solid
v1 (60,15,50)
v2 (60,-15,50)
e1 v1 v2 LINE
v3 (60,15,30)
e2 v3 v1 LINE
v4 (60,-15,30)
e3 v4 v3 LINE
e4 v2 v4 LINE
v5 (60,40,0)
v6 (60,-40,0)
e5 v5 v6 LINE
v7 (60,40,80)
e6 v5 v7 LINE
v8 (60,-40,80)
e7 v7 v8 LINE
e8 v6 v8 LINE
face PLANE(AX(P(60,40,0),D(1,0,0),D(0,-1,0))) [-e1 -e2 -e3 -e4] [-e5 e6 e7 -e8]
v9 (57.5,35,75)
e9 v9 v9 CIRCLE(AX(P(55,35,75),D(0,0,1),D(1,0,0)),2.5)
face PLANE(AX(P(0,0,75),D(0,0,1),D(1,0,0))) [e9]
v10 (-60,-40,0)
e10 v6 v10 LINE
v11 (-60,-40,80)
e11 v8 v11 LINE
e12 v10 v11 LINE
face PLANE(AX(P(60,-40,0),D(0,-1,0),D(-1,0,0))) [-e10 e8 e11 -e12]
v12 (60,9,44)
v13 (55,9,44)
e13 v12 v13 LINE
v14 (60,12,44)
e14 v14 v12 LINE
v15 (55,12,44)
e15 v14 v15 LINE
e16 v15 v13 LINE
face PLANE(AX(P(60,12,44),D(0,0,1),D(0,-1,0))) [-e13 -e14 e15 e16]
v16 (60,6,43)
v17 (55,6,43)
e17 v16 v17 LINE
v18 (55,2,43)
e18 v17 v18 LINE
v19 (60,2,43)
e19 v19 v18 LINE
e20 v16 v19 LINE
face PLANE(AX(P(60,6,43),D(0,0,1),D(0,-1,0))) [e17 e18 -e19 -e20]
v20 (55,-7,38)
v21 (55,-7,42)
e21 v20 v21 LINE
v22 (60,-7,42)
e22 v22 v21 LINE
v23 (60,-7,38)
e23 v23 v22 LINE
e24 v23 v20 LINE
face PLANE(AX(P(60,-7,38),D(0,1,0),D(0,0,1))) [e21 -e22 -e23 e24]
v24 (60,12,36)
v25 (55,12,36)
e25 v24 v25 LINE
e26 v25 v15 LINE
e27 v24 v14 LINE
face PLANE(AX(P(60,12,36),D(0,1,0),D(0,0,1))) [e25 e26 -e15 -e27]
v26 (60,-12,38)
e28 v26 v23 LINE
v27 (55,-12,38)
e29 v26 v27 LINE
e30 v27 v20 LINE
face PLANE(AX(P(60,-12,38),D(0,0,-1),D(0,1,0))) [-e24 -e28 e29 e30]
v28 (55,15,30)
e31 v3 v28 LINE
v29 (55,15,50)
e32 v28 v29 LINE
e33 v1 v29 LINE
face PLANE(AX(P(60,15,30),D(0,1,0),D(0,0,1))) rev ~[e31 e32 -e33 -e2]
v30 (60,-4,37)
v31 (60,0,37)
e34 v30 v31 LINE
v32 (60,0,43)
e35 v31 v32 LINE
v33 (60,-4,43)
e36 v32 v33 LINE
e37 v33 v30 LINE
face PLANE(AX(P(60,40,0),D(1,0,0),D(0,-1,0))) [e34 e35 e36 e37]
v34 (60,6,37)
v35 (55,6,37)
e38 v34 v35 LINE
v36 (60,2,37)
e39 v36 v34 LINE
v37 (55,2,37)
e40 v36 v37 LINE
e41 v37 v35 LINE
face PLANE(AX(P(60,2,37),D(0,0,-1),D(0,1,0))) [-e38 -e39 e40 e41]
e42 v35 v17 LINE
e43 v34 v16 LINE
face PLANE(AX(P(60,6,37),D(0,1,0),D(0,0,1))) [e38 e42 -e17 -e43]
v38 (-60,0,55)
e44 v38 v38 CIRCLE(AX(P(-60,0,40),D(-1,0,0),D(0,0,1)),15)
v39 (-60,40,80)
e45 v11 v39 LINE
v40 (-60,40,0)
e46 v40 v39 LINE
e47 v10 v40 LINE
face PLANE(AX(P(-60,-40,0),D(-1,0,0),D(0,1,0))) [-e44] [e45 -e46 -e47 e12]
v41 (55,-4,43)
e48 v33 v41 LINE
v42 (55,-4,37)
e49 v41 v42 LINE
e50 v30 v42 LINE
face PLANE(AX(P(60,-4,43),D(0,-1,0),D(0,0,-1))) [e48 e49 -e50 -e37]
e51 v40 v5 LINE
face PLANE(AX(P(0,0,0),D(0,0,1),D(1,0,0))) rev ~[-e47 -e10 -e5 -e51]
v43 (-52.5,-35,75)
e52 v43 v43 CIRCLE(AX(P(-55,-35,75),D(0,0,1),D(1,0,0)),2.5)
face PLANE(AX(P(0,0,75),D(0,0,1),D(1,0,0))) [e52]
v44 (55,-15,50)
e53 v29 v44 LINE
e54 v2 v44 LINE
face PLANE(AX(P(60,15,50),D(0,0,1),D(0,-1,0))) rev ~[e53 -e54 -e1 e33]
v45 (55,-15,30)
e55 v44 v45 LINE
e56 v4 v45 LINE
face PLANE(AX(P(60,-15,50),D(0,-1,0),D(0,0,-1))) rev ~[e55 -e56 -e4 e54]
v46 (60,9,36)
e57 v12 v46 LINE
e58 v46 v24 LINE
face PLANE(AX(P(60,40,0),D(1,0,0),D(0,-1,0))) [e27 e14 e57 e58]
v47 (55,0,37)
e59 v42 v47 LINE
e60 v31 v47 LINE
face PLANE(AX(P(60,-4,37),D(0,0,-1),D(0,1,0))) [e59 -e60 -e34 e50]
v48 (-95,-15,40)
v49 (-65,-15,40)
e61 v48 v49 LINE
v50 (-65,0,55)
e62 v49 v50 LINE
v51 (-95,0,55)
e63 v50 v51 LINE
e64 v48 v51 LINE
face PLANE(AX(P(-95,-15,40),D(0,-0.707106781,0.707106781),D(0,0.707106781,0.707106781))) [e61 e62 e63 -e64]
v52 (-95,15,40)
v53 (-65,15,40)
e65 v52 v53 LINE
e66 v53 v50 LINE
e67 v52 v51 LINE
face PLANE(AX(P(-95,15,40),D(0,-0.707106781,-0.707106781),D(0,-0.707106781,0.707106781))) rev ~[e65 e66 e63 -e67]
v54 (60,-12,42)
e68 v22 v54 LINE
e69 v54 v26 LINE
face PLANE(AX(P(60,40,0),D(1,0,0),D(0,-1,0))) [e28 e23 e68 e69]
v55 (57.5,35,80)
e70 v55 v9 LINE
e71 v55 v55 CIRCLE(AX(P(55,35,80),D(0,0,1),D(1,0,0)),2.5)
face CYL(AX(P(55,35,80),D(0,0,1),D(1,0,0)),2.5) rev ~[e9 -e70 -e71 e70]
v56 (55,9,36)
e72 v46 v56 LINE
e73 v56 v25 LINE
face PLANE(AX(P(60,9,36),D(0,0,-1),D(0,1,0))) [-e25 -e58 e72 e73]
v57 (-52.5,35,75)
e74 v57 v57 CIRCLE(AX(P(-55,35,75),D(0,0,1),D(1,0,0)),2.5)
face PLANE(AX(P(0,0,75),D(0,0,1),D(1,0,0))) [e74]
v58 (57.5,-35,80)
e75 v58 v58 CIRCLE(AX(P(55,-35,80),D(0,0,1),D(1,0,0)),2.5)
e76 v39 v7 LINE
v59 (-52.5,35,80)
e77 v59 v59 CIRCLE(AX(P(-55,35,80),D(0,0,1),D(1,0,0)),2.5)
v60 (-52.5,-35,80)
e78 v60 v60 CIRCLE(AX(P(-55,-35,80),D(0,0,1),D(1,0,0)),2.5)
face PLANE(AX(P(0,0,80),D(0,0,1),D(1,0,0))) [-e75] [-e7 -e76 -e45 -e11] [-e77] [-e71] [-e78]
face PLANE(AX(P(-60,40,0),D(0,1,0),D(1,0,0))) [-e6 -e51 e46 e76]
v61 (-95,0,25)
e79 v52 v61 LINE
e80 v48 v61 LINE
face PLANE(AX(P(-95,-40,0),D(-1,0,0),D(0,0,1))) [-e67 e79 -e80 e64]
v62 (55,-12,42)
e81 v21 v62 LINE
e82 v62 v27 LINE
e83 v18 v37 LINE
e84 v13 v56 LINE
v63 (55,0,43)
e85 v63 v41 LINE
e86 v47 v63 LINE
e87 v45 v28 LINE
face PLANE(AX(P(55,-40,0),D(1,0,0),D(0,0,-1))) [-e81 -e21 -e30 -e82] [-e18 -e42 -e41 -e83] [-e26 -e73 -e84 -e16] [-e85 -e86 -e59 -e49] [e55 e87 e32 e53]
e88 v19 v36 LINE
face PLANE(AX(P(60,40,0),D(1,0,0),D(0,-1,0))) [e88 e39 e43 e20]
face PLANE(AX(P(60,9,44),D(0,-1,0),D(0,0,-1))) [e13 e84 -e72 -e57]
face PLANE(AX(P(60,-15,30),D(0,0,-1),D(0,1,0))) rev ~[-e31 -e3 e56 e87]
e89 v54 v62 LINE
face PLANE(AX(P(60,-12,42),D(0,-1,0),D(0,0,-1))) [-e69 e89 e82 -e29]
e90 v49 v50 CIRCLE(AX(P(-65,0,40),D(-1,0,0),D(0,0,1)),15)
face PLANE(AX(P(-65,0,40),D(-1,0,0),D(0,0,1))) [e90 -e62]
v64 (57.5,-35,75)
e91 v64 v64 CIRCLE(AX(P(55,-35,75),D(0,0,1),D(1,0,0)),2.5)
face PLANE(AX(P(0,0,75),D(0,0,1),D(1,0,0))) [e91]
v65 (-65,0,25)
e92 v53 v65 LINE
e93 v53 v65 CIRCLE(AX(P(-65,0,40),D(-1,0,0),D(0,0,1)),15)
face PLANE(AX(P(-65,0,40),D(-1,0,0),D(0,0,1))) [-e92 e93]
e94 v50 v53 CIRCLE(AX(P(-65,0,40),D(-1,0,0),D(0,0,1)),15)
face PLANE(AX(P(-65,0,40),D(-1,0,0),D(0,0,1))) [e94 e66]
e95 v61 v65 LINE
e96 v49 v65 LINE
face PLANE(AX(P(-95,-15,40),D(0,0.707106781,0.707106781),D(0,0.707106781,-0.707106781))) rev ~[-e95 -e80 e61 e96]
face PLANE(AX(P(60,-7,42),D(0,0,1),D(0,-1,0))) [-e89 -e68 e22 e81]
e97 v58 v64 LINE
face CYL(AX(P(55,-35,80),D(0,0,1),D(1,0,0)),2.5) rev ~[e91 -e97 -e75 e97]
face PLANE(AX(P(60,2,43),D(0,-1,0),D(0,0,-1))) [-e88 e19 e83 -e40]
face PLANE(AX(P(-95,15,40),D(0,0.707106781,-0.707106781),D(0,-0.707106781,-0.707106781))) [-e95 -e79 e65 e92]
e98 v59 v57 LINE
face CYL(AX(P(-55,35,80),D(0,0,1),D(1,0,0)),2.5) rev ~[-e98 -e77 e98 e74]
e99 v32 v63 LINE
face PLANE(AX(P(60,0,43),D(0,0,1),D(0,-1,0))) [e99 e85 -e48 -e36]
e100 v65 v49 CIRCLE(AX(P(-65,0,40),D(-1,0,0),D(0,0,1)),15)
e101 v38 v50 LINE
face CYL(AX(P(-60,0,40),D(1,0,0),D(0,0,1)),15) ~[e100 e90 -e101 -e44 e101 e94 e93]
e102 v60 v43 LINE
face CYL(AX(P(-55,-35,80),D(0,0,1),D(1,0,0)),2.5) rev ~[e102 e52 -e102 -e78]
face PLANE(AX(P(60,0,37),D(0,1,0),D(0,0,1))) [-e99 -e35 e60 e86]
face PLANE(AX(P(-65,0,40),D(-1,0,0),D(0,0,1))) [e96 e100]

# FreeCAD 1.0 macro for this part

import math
import FreeCAD as App
import Part
import Sketcher

V = App.Vector
Q = App.Units.Quantity

doc = App.newDocument("Part")
body = doc.addObject("PartDesign::Body", "Body")

sketch1 = body.newObject("Sketcher::SketchObject", "Sketch")
sketch1.AttachmentSupport = (doc.getObject("XY_Plane"), [""])
sketch1.MapMode = "FlatFace"
sketch1.addGeometry(Part.LineSegment(V(60, 40, 0), V(-60, 40, 0)), False)
sketch1.addGeometry(Part.LineSegment(V(-60, 40, 0), V(-60, -40, 0)), False)
sketch1.addGeometry(Part.LineSegment(V(-60, -40, 0), V(60, -40, 0)), False)
sketch1.addGeometry(Part.LineSegment(V(60, -40, 0), V(60, 40, 0)), False)
sketch1.addConstraint(Sketcher.Constraint("Coincident", 0, 2, 1, 1))
sketch1.addConstraint(Sketcher.Constraint("Coincident", 1, 2, 2, 1))
sketch1.addConstraint(Sketcher.Constraint("Coincident", 2, 2, 3, 1))
sketch1.addConstraint(Sketcher.Constraint("Coincident", 3, 2, 0, 1))
sketch1.addConstraint(Sketcher.Constraint("Horizontal", 0))
sketch1.addConstraint(Sketcher.Constraint("Vertical", 1))
sketch1.addConstraint(Sketcher.Constraint("Horizontal", 2))
sketch1.addConstraint(Sketcher.Constraint("Vertical", 3))
sketch1.addConstraint(Sketcher.Constraint("Symmetric", 0, 2, 2, 2, -1, 1))
sketch1.addConstraint(Sketcher.Constraint("DistanceX", 0, 2, 0, 1, Q("120 mm")))
sketch1.addConstraint(Sketcher.Constraint("DistanceY", 1, 2, 1, 1, Q("80 mm")))
pad1 = body.newObject("PartDesign::Pad", "Pad")
pad1.Profile = sketch1
pad1.Length = 80

sketch2 = body.newObject("Sketcher::SketchObject", "Sketch001")
sketch2.AttachmentSupport = (doc.getObject("YZ_Plane"), [""])
sketch2.MapMode = "FlatFace"
sketch2.AttachmentOffset = App.Placement(V(0, 0, -60), App.Rotation())
sketch2.addGeometry(Part.Circle(V(0, 40, 0), V(0, 0, 1), 15), False)
sketch2.addConstraint(Sketcher.Constraint("PointOnObject", 0, 3, -2))
sketch2.addConstraint(Sketcher.Constraint("Diameter", 0, Q("30 mm")))
sketch2.addConstraint(Sketcher.Constraint("DistanceY", -1, 1, 0, 3, Q("40 mm")))
pad2 = body.newObject("PartDesign::Pad", "Pad001")
pad2.Profile = sketch2
pad2.Length = 35
pad2.Reversed = True

sketch3 = body.newObject("Sketcher::SketchObject", "Sketch002")
sketch3.AttachmentSupport = (doc.getObject("YZ_Plane"), [""])
sketch3.MapMode = "FlatFace"
sketch3.AttachmentOffset = App.Placement(V(0, 0, -95), App.Rotation())
sketch3.addGeometry(Part.LineSegment(V(15, 40, 0), V(0, 55, 0)), False)
sketch3.addGeometry(Part.ArcOfCircle(Part.Circle(V(0, 40, 0), V(0, 0, 1), 15), math.radians(0), math.radians(90)), False)
sketch3.addGeometry(Part.ArcOfCircle(Part.Circle(V(0, 40, 0), V(0, 0, 1), 15), math.radians(90), math.radians(180)), False)
sketch3.addGeometry(Part.LineSegment(V(0, 55, 0), V(-15, 40, 0)), False)
sketch3.addGeometry(Part.LineSegment(V(0, 25, 0), V(15, 40, 0)), False)
sketch3.addGeometry(Part.ArcOfCircle(Part.Circle(V(0, 40, 0), V(0, 0, 1), 15), math.radians(-90), math.radians(0)), False)
sketch3.addGeometry(Part.ArcOfCircle(Part.Circle(V(0, 40, 0), V(0, 0, 1), 15), math.radians(180), math.radians(270)), False)
sketch3.addGeometry(Part.LineSegment(V(-15, 40, 0), V(0, 25, 0)), False)
sketch3.addConstraint(Sketcher.Constraint("Coincident", 0, 1, 1, 1))
sketch3.addConstraint(Sketcher.Constraint("Coincident", 1, 2, 0, 2))
sketch3.addConstraint(Sketcher.Constraint("Coincident", 2, 1, 3, 1))
sketch3.addConstraint(Sketcher.Constraint("Coincident", 3, 2, 2, 2))
sketch3.addConstraint(Sketcher.Constraint("Coincident", 4, 1, 5, 1))
sketch3.addConstraint(Sketcher.Constraint("Coincident", 5, 2, 4, 2))
sketch3.addConstraint(Sketcher.Constraint("Coincident", 6, 1, 7, 1))
sketch3.addConstraint(Sketcher.Constraint("Coincident", 7, 2, 6, 2))
sketch3.addConstraint(Sketcher.Constraint("Coincident", 2, 3, 1, 3))
sketch3.addConstraint(Sketcher.Constraint("Coincident", 5, 3, 1, 3))
sketch3.addConstraint(Sketcher.Constraint("Coincident", 6, 3, 1, 3))
sketch3.addConstraint(Sketcher.Constraint("Coincident", 2, 1, 1, 2))
sketch3.addConstraint(Sketcher.Constraint("Coincident", 5, 2, 0, 1))
sketch3.addConstraint(Sketcher.Constraint("Coincident", 6, 1, 3, 2))
sketch3.addConstraint(Sketcher.Constraint("Symmetric", 0, 1, 3, 2, -2))
sketch3.addConstraint(Sketcher.Constraint("PointOnObject", 1, 2, -2))
sketch3.addConstraint(Sketcher.Constraint("PointOnObject", 4, 1, -2))
sketch3.addConstraint(Sketcher.Constraint("PointOnObject", 7, 2, -2))
sketch3.addConstraint(Sketcher.Constraint("Perpendicular", 0, 3))
sketch3.addConstraint(Sketcher.Constraint("Radius", 1, Q("15 mm")))
sketch3.addConstraint(Sketcher.Constraint("DistanceY", -1, 1, 1, 3, Q("40 mm")))
pocket1 = body.newObject("PartDesign::Pocket", "Pocket")
pocket1.Profile = sketch3
pocket1.Length = 30
pocket1.Reversed = True

sketch4 = body.newObject("Sketcher::SketchObject", "Sketch003")
sketch4.AttachmentSupport = (doc.getObject("YZ_Plane"), [""])
sketch4.MapMode = "FlatFace"
sketch4.AttachmentOffset = App.Placement(V(0, 0, 60), App.Rotation())
sketch4.addGeometry(Part.LineSegment(V(15, 50, 0), V(-15, 50, 0)), False)
sketch4.addGeometry(Part.LineSegment(V(-15, 50, 0), V(-15, 30, 0)), False)
sketch4.addGeometry(Part.LineSegment(V(-15, 30, 0), V(15, 30, 0)), False)
sketch4.addGeometry(Part.LineSegment(V(15, 30, 0), V(15, 50, 0)), False)
sketch4.addGeometry(Part.LineSegment(V(-7, 42, 0), V(-7, 38, 0)), False)
sketch4.addGeometry(Part.LineSegment(V(-7, 38, 0), V(-12, 38, 0)), False)
sketch4.addGeometry(Part.LineSegment(V(-12, 38, 0), V(-12, 42, 0)), False)
sketch4.addGeometry(Part.LineSegment(V(-12, 42, 0), V(-7, 42, 0)), False)
sketch4.addGeometry(Part.LineSegment(V(0, 43, 0), V(0, 37, 0)), False)
sketch4.addGeometry(Part.LineSegment(V(0, 37, 0), V(-4, 37, 0)), False)
sketch4.addGeometry(Part.LineSegment(V(-4, 37, 0), V(-4, 43, 0)), False)
sketch4.addGeometry(Part.LineSegment(V(-4, 43, 0), V(0, 43, 0)), False)
sketch4.addGeometry(Part.LineSegment(V(6, 43, 0), V(6, 37, 0)), False)
sketch4.addGeometry(Part.LineSegment(V(6, 37, 0), V(2, 37, 0)), False)
sketch4.addGeometry(Part.LineSegment(V(2, 37, 0), V(2, 43, 0)), False)
sketch4.addGeometry(Part.LineSegment(V(2, 43, 0), V(6, 43, 0)), False)
sketch4.addGeometry(Part.LineSegment(V(9, 36, 0), V(9, 44, 0)), False)
sketch4.addGeometry(Part.LineSegment(V(9, 44, 0), V(12, 44, 0)), False)
sketch4.addGeometry(Part.LineSegment(V(12, 44, 0), V(12, 36, 0)), False)
sketch4.addGeometry(Part.LineSegment(V(12, 36, 0), V(9, 36, 0)), False)
sketch4.addConstraint(Sketcher.Constraint("Coincident", 0, 2, 1, 1))
sketch4.addConstraint(Sketcher.Constraint("Coincident", 1, 2, 2, 1))
sketch4.addConstraint(Sketcher.Constraint("Coincident", 2, 2, 3, 1))
sketch4.addConstraint(Sketcher.Constraint("Coincident", 3, 2, 0, 1))
sketch4.addConstraint(Sketcher.Constraint("Coincident", 4, 2, 5, 1))
sketch4.addConstraint(Sketcher.Constraint("Coincident", 5, 2, 6, 1))
sketch4.addConstraint(Sketcher.Constraint("Coincident", 6, 2, 7, 1))
sketch4.addConstraint(Sketcher.Constraint("Coincident", 7, 2, 4, 1))
sketch4.addConstraint(Sketcher.Constraint("Coincident", 8, 2, 9, 1))
sketch4.addConstraint(Sketcher.Constraint("Coincident", 9, 2, 10, 1))
sketch4.addConstraint(Sketcher.Constraint("Coincident", 10, 2, 11, 1))
sketch4.addConstraint(Sketcher.Constraint("Coincident", 11, 2, 8, 1))
sketch4.addConstraint(Sketcher.Constraint("Coincident", 12, 2, 13, 1))
sketch4.addConstraint(Sketcher.Constraint("Coincident", 13, 2, 14, 1))
sketch4.addConstraint(Sketcher.Constraint("Coincident", 14, 2, 15, 1))
sketch4.addConstraint(Sketcher.Constraint("Coincident", 15, 2, 12, 1))
sketch4.addConstraint(Sketcher.Constraint("Coincident", 16, 2, 17, 1))
sketch4.addConstraint(Sketcher.Constraint("Coincident", 17, 2, 18, 1))
sketch4.addConstraint(Sketcher.Constraint("Coincident", 18, 2, 19, 1))
sketch4.addConstraint(Sketcher.Constraint("Coincident", 19, 2, 16, 1))
sketch4.addConstraint(Sketcher.Constraint("Horizontal", 0))
sketch4.addConstraint(Sketcher.Constraint("Vertical", 1))
sketch4.addConstraint(Sketcher.Constraint("Horizontal", 2))
sketch4.addConstraint(Sketcher.Constraint("Vertical", 3))
sketch4.addConstraint(Sketcher.Constraint("Vertical", 4))
sketch4.addConstraint(Sketcher.Constraint("Horizontal", 5))
sketch4.addConstraint(Sketcher.Constraint("Vertical", 6))
sketch4.addConstraint(Sketcher.Constraint("Horizontal", 7))
sketch4.addConstraint(Sketcher.Constraint("Vertical", 8))
sketch4.addConstraint(Sketcher.Constraint("Horizontal", 9))
sketch4.addConstraint(Sketcher.Constraint("Vertical", 10))
sketch4.addConstraint(Sketcher.Constraint("Horizontal", 11))
sketch4.addConstraint(Sketcher.Constraint("Vertical", 12))
sketch4.addConstraint(Sketcher.Constraint("Horizontal", 13))
sketch4.addConstraint(Sketcher.Constraint("Vertical", 14))
sketch4.addConstraint(Sketcher.Constraint("Horizontal", 15))
sketch4.addConstraint(Sketcher.Constraint("Vertical", 16))
sketch4.addConstraint(Sketcher.Constraint("Horizontal", 17))
sketch4.addConstraint(Sketcher.Constraint("Vertical", 18))
sketch4.addConstraint(Sketcher.Constraint("Horizontal", 19))
sketch4.addConstraint(Sketcher.Constraint("PointOnObject", 8, 2, -2))
sketch4.addConstraint(Sketcher.Constraint("Horizontal", 9, 2, 12, 2))
sketch4.addConstraint(Sketcher.Constraint("Horizontal", 11, 2, 14, 2))
sketch4.addConstraint(Sketcher.Constraint("Equal", 11, 13))
sketch4.addConstraint(Sketcher.Constraint("Equal", 15, 4))
sketch4.addConstraint(Sketcher.Constraint("DistanceX", 0, 2, 0, 1, Q("30 mm")))
sketch4.addConstraint(Sketcher.Constraint("DistanceX", 5, 2, 5, 1, Q("5 mm")))
sketch4.addConstraint(Sketcher.Constraint("DistanceX", 9, 2, 9, 1, Q("4 mm")))
sketch4.addConstraint(Sketcher.Constraint("DistanceX", 17, 1, 17, 2, Q("3 mm")))
sketch4.addConstraint(Sketcher.Constraint("DistanceY", 1, 2, 1, 1, Q("20 mm")))
sketch4.addConstraint(Sketcher.Constraint("DistanceY", 8, 2, 8, 1, Q("6 mm")))
sketch4.addConstraint(Sketcher.Constraint("DistanceY", 16, 1, 16, 2, Q("8 mm")))
sketch4.addConstraint(Sketcher.Constraint("DistanceY", -1, 1, 1, 2, Q("30 mm")))
sketch4.addConstraint(Sketcher.Constraint("DistanceX", -1, 1, 12, 2, Q("6 mm")))
sketch4.addConstraint(Sketcher.Constraint("DistanceX", 1, 2, 4, 2, Q("8 mm")))
sketch4.addConstraint(Sketcher.Constraint("DistanceY", 1, 2, 4, 2, Q("8 mm")))
sketch4.addConstraint(Sketcher.Constraint("DistanceY", 8, 2, 7, 2, Q("5 mm")))
sketch4.addConstraint(Sketcher.Constraint("DistanceX", 4, 2, 9, 2, Q("3 mm")))
sketch4.addConstraint(Sketcher.Constraint("DistanceX", 15, 2, 16, 2, Q("3 mm")))
sketch4.addConstraint(Sketcher.Constraint("DistanceY", 16, 2, 3, 2, Q("6 mm")))
pocket2 = body.newObject("PartDesign::Pocket", "Pocket001")
pocket2.Profile = sketch4
pocket2.Length = 5

sketch5 = body.newObject("Sketcher::SketchObject", "Sketch004")
sketch5.AttachmentSupport = (doc.getObject("XY_Plane"), [""])
sketch5.MapMode = "FlatFace"
sketch5.AttachmentOffset = App.Placement(V(0, 0, 80), App.Rotation())
sketch5.addGeometry(Part.Circle(V(-55, 35, 0), V(0, 0, 1), 2.5), False)
sketch5.addGeometry(Part.Circle(V(55, 35, 0), V(0, 0, 1), 2.5), False)
sketch5.addGeometry(Part.Circle(V(-55, -35, 0), V(0, 0, 1), 2.5), False)
sketch5.addGeometry(Part.Circle(V(55, -35, 0), V(0, 0, 1), 2.5), False)
sketch5.addConstraint(Sketcher.Constraint("Equal", 0, 1))
sketch5.addConstraint(Sketcher.Constraint("Equal", 1, 2))
sketch5.addConstraint(Sketcher.Constraint("Equal", 2, 3))
sketch5.addConstraint(Sketcher.Constraint("Symmetric", 1, 3, 2, 3, -1, 1))
sketch5.addConstraint(Sketcher.Constraint("Symmetric", 0, 3, 3, 3, -1, 1))
sketch5.addConstraint(Sketcher.Constraint("Symmetric", 0, 3, 1, 3, -2))
sketch5.addConstraint(Sketcher.Constraint("Diameter", 0, Q("5 mm")))
sketch5.addConstraint(Sketcher.Constraint("DistanceX", 0, 3, 1, 3, Q("110 mm")))
sketch5.addConstraint(Sketcher.Constraint("DistanceY", 2, 3, 0, 3, Q("70 mm")))
pocket3 = body.newObject("PartDesign::Pocket", "Pocket002")
pocket3.Profile = sketch5
pocket3.Length = 5

doc.recompute()
